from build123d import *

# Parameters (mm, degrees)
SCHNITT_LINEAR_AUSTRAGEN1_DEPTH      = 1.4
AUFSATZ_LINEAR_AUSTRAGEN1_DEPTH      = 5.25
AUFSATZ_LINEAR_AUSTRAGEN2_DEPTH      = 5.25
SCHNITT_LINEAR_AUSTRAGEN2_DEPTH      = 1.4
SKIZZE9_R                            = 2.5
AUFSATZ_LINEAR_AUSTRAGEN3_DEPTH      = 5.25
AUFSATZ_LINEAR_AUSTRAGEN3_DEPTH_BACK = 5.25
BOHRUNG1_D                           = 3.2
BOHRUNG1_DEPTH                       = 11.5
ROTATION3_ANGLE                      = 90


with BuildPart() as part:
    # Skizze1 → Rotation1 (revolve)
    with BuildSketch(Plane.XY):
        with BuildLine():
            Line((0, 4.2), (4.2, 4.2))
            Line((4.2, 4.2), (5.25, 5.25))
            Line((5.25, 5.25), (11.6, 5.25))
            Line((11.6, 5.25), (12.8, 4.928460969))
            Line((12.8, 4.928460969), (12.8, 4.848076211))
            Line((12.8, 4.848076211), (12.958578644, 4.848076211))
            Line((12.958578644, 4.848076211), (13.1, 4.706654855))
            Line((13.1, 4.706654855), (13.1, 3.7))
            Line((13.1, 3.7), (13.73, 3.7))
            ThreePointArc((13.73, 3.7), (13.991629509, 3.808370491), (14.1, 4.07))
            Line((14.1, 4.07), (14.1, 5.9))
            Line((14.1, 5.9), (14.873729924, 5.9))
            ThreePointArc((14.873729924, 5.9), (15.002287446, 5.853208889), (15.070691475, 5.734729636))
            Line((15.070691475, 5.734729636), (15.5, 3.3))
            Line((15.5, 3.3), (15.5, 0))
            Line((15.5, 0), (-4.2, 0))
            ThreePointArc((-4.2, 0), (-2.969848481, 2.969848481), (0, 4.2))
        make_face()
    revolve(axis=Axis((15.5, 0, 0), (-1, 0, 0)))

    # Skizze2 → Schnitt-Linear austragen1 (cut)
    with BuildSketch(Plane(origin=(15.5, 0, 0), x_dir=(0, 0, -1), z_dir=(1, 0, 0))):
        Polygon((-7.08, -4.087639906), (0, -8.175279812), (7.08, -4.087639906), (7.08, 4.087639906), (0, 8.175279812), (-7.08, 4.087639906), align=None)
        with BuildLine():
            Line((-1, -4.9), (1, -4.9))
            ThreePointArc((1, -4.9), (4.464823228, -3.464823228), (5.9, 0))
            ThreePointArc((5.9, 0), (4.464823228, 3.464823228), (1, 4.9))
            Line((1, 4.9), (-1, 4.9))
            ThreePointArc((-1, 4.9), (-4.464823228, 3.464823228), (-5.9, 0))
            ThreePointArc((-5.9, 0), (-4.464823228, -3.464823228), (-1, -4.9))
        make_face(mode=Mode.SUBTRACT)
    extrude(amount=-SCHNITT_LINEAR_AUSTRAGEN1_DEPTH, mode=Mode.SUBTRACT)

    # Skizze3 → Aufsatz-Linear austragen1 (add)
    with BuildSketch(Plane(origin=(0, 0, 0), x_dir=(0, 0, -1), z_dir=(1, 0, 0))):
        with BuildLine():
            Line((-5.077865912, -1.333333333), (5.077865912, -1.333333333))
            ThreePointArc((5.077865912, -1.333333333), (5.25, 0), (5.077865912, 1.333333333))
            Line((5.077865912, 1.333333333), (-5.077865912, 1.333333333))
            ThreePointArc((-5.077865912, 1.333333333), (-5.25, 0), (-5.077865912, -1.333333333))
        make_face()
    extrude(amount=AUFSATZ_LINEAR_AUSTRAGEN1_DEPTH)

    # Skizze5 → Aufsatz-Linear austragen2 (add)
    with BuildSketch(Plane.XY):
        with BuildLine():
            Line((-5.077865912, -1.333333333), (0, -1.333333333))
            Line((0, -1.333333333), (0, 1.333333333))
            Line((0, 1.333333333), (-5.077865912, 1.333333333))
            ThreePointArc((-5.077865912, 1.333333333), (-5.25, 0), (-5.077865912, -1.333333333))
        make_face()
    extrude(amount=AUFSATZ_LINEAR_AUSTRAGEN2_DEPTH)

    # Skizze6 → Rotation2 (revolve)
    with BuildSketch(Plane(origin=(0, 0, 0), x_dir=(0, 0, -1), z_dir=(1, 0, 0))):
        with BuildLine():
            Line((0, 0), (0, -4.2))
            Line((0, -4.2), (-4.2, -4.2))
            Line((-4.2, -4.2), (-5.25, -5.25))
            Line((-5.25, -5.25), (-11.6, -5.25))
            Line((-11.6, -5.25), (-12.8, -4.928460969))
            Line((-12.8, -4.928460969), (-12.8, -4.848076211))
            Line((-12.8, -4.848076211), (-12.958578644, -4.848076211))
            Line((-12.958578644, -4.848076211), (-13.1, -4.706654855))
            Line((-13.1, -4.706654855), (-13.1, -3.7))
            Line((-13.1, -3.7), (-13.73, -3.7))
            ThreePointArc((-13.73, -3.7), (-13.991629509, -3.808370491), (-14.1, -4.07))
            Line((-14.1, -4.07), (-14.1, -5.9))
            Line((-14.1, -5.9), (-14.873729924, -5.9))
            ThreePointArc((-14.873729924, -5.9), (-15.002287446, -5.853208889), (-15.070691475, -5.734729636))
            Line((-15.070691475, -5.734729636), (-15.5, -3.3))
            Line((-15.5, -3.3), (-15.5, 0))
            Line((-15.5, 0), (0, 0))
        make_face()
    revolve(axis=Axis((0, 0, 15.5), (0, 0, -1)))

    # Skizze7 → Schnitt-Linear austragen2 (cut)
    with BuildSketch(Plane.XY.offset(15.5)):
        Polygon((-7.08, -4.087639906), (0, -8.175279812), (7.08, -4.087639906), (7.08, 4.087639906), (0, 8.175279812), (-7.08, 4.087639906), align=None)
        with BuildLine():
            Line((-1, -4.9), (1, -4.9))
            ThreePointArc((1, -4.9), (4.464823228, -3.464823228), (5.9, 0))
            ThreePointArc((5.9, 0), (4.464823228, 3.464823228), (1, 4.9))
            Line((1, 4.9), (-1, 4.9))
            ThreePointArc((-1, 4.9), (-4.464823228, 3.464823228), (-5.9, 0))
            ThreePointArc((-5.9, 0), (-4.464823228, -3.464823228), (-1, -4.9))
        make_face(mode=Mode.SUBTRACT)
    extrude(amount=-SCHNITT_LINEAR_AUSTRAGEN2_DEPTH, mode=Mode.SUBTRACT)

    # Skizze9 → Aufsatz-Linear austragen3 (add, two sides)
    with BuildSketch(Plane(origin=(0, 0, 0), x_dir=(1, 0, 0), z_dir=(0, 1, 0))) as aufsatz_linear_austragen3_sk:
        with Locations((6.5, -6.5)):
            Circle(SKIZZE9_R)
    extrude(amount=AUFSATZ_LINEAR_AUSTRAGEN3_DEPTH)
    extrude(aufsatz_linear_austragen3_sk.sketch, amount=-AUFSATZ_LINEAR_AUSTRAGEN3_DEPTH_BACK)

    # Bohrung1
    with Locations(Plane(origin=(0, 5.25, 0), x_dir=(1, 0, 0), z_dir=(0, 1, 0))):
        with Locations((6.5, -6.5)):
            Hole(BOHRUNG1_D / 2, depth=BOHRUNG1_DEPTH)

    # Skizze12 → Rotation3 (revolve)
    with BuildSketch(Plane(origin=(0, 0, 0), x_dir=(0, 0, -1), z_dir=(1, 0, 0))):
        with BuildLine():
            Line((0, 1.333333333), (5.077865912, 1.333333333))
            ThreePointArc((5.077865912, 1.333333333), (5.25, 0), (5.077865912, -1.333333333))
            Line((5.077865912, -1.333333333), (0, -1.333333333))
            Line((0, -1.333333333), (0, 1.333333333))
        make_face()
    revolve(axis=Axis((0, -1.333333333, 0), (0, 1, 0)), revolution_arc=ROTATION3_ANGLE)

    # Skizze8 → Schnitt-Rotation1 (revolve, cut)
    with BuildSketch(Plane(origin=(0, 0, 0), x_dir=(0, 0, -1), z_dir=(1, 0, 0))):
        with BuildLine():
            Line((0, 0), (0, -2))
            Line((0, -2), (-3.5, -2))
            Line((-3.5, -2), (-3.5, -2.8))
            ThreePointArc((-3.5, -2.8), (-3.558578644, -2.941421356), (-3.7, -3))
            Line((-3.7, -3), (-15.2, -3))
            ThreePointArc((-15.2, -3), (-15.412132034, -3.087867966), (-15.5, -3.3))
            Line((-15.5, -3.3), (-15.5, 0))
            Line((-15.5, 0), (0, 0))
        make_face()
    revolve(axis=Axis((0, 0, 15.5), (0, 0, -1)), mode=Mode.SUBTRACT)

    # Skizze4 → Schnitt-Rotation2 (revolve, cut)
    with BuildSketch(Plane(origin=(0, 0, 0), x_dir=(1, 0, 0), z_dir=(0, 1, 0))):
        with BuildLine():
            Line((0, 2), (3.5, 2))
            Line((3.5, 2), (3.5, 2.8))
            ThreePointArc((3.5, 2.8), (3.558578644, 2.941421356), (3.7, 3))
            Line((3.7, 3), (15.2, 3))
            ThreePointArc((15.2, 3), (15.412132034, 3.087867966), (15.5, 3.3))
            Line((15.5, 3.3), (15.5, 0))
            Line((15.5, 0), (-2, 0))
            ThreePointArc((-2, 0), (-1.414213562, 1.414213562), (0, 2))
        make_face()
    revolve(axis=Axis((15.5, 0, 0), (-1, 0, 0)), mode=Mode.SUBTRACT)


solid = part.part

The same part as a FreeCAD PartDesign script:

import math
import FreeCAD as App
import Part
import Sketcher
from FreeCAD import Vector
Q = App.Units.Quantity


def add_polygon(sketch, points):
    """Adds a closed chain of lines whose ends are joined by coincident constraints."""
    first, n = sketch.GeometryCount, len(points)
    for a, b in zip(points, points[1:] + points[:1]):
        sketch.addGeometry(Part.LineSegment(App.Vector(*a, 0), App.Vector(*b, 0)), False)
    for i in range(n):
        sketch.addConstraint(Sketcher.Constraint("Coincident", first + i, 2, first + (i + 1) % n, 1))

doc = App.newDocument("Part")
params = doc.addObject("Spreadsheet::Sheet", "Params")
for row, (alias, value) in enumerate([
    ("sketch1_radius", "4.2 mm"),
    ("sketch1_radius2", "0.2 mm"),
    ("sketch1_radius3", "0.37 mm"),
    ("sketch1_width", "4.2 mm"),
    ("sketch1_width2", "19.7 mm"),
    ("revolution_angle", "360 deg"),
    ("sketch2_radius", "4.9 mm"),
    ("sketch2_height", "2 mm"),
    ("pocket1_length", "1.4 mm"),
    ("sketch3_radius", "5.25 mm"),
    ("pad1_length", "5.25 mm"),
    ("sketch4_radius", "5.25 mm"),
    ("pad2_length", "5.25 mm"),
    ("sketch5_radius", "0.2 mm"),
    ("sketch5_radius2", "0.37 mm"),
    ("sketch5_width", "4.2 mm"),
    ("sketch5_width2", "3.3 mm"),
    ("sketch5_height", "15.5 mm"),
    ("revolution2_angle", "360 deg"),
    ("sketch6_radius", "4.9 mm"),
    ("sketch6_width", "2 mm"),
    ("pocket2_length", "1.4 mm"),
    ("sketch7_diameter", "5 mm"),
    ("pad3_length", "5.25 mm"),
    ("pad3_length2", "5.25 mm"),
    ("sketch8_diameter", "3.2 mm"),
    ("hole_diameter", "3.2 mm"),
    ("hole_depth", "11.5 mm"),
    ("sketch9_radius", "5.25 mm"),
    ("revolution3_angle", "90 deg"),
    ("sketch10_radius", "0.3 mm"),
    ("sketch10_radius2", "0.2 mm"),
    ("sketch10_width", "2 mm"),
    ("sketch10_width2", "3.3 mm"),
    ("sketch10_height", "15.5 mm"),
    ("groove_angle", "360 deg"),
    ("sketch11_radius", "2 mm"),
    ("sketch11_radius2", "0.3 mm"),
    ("sketch11_radius3", "0.2 mm"),
    ("sketch11_width", "3.5 mm"),
    ("sketch11_width2", "17.5 mm"),
    ("groove2_angle", "360 deg"),
], start=1):
    params.set(f"A{row}", alias)
    params.set(f"B{row}", "=" + value)
    params.setAlias(f"B{row}", alias)

body = doc.addObject("PartDesign::Body", "Body")

sketch1 = body.newObject("Sketcher::SketchObject", "Sketch")
sketch1.AttachmentSupport = (doc.getObject("XY_Plane"), [""])
sketch1.MapMode = "FlatFace"
sketch1.addGeometry([
    Part.LineSegment(Vector(4.2, 4.2, 0), Vector(0, 4.2, 0)),
    Part.ArcOfCircle(Part.Circle(Vector(0, 0, 0), Vector(0, 0, 1), 4.2), math.radians(90), math.radians(180)),
    Part.LineSegment(Vector(-4.2, 0, 0), Vector(15.5, 0, 0)),
    Part.LineSegment(Vector(15.5, 0, 0), Vector(15.5, 3.3, 0)),
    Part.LineSegment(Vector(15.5, 3.3, 0), Vector(15.07, 5.73, 0)),
    Part.ArcOfCircle(Part.Circle(Vector(14.87, 5.7, 0), Vector(0, 0, 1), 0.2), math.radians(10), math.radians(90)),
    Part.LineSegment(Vector(14.87, 5.9, 0), Vector(14.1, 5.9, 0)),
    Part.LineSegment(Vector(14.1, 5.9, 0), Vector(14.1, 4.07, 0)),
    Part.ArcOfCircle(Part.Circle(Vector(13.73, 4.07, 0), Vector(0, 0, 1), 0.37), math.radians(-90), math.radians(0)),
    Part.LineSegment(Vector(13.73, 3.7, 0), Vector(13.1, 3.7, 0)),
    Part.LineSegment(Vector(13.1, 3.7, 0), Vector(13.1, 4.71, 0)),
    Part.LineSegment(Vector(13.1, 4.71, 0), Vector(12.96, 4.85, 0)),
    Part.LineSegment(Vector(12.96, 4.85, 0), Vector(12.8, 4.85, 0)),
    Part.LineSegment(Vector(12.8, 4.85, 0), Vector(12.8, 4.93, 0)),
    Part.LineSegment(Vector(12.8, 4.93, 0), Vector(11.6, 5.25, 0)),
    Part.LineSegment(Vector(11.6, 5.25, 0), Vector(5.25, 5.25, 0)),
    Part.LineSegment(Vector(5.25, 5.25, 0), Vector(4.2, 4.2, 0)),
], False)
sketch1.addConstraint([
    Sketcher.Constraint("Tangent", 0, 2, 1, 1),
    Sketcher.Constraint("Coincident", 1, 2, 2, 1),
    Sketcher.Constraint("Coincident", 2, 2, 3, 1),
    Sketcher.Constraint("Coincident", 3, 2, 4, 1),
    Sketcher.Constraint("Tangent", 4, 2, 5, 1),
    Sketcher.Constraint("Tangent", 5, 2, 6, 1),
    Sketcher.Constraint("Coincident", 6, 2, 7, 1),
    Sketcher.Constraint("Tangent", 7, 2, 8, 2),
    Sketcher.Constraint("Tangent", 8, 1, 9, 1),
    Sketcher.Constraint("Coincident", 9, 2, 10, 1),
    Sketcher.Constraint("Coincident", 10, 2, 11, 1),
    Sketcher.Constraint("Coincident", 11, 2, 12, 1),
    Sketcher.Constraint("Coincident", 12, 2, 13, 1),
    Sketcher.Constraint("Coincident", 13, 2, 14, 1),
    Sketcher.Constraint("Coincident", 14, 2, 15, 1),
    Sketcher.Constraint("Coincident", 15, 2, 16, 1),
    Sketcher.Constraint("Coincident", 16, 2, 0, 1),
    Sketcher.Constraint("Horizontal", 0),
    Sketcher.Constraint("Horizontal", 2),
    Sketcher.Constraint("Vertical", 3),
    Sketcher.Constraint("Horizontal", 6),
    Sketcher.Constraint("Vertical", 7),
    Sketcher.Constraint("Horizontal", 9),
    Sketcher.Constraint("Vertical", 10),
    Sketcher.Constraint("Horizontal", 12),
    Sketcher.Constraint("Vertical", 13),
    Sketcher.Constraint("Horizontal", 15),
    Sketcher.Constraint("Coincident", 1, 3, -1, 1),
    Sketcher.Constraint("PointOnObject", 1, 2, -1),
    Sketcher.Constraint("Perpendicular", 11, 16),
    Sketcher.Constraint("Radius", 1, Q("4.2 mm")),
    Sketcher.Constraint("Radius", 5, Q("0.2 mm")),
    Sketcher.Constraint("Angle", 4, Q("100 deg")),
    Sketcher.Constraint("Angle", 11, Q("135 deg")),
    Sketcher.Constraint("Angle", 14, Q("165 deg")),
    Sketcher.Constraint("Radius", 8, Q("0.37 mm")),
    Sketcher.Constraint("DistanceX", 0, 2, 0, 1, Q("4.2 mm")),
    Sketcher.Constraint("DistanceX", 2, 1, 2, 2, Q("19.7 mm")),
    Sketcher.Constraint("DistanceY", 3, 1, 3, 2, Q("3.3 mm")),
    Sketcher.Constraint("DistanceY", 8, 1, 5, 3, Q("2 mm")),
    Sketcher.Constraint("DistanceX", 9, 2, 7, 2, Q("1 mm")),
    Sketcher.Constraint("Distance", 11, Q("0.2 mm")),
    Sketcher.Constraint("DistanceX", 15, 2, 15, 1, Q("6.35 mm")),
    Sketcher.Constraint("DistanceY", -1, 1, 5, 3, Q("5.7 mm")),
    Sketcher.Constraint("DistanceX", -1, 1, 6, 2, Q("14.1 mm")),
    Sketcher.Constraint("DistanceX", -1, 1, 12, 2, Q("12.8 mm")),
    Sketcher.Constraint("DistanceX", -1, 1, 14, 2, Q("11.6 mm")),
    Sketcher.Constraint("DistanceY", 10, 1, 10, 2, Q("1.006655 mm")),
])
sketch1.setExpression("Constraints[30]", "Params.sketch1_radius")
sketch1.setExpression("Constraints[31]", "Params.sketch1_radius2")
sketch1.setExpression("Constraints[35]", "Params.sketch1_radius3")
sketch1.setExpression("Constraints[36]", "Params.sketch1_width")
sketch1.setExpression("Constraints[37]", "Params.sketch1_width2")
revolution = body.newObject("PartDesign::Revolution", "Revolution")
revolution.Profile = sketch1
revolution.ReferenceAxis = (sketch1, ["H_Axis"])
revolution.setExpression("Angle", "Params.revolution_angle")

sketch2 = body.newObject("Sketcher::SketchObject", "Sketch001")
sketch2.AttachmentSupport = (doc.getObject("YZ_Plane"), [""])
sketch2.MapMode = "FlatFace"
sketch2.AttachmentOffset = App.Placement(Vector(0, 0, 15.5), App.Rotation())
add_polygon(sketch2, [(-4.1, 7.1), (-8.2, 0), (-4.1, -7.1), (4.1, -7.1), (8.2, 0), (4.1, 7.1)])
sketch2.addGeometry(Part.LineSegment(Vector(-4.9, -1, 0), Vector(-4.9, 1, 0)), False)
sketch2.addGeometry(Part.ArcOfCircle(Part.Circle(Vector(0, 1, 0), Vector(0, 0, 1), 4.9), math.radians(90), math.radians(180)), False)
sketch2.addGeometry(Part.ArcOfCircle(Part.Circle(Vector(0, 1, 0), Vector(0, 0, 1), 4.9), math.radians(0), math.radians(90)), False)
sketch2.addGeometry(Part.LineSegment(Vector(4.9, 1, 0), Vector(4.9, -1, 0)), False)
sketch2.addGeometry(Part.ArcOfCircle(Part.Circle(Vector(0, -1, 0), Vector(0, 0, 1), 4.9), math.radians(-90), math.radians(0)), False)
sketch2.addGeometry(Part.ArcOfCircle(Part.Circle(Vector(0, -1, 0), Vector(0, 0, 1), 4.9), math.radians(180), math.radians(270)), False)
sketch2.addConstraint([
    Sketcher.Constraint("Tangent", 6, 2, 7, 2),
    Sketcher.Constraint("Tangent", 7, 1, 8, 2),
    Sketcher.Constraint("Tangent", 8, 1, 9, 1),
    Sketcher.Constraint("Tangent", 9, 2, 10, 2),
    Sketcher.Constraint("Tangent", 10, 1, 11, 2),
    Sketcher.Constraint("Tangent", 11, 1, 6, 1),
    Sketcher.Constraint("Horizontal", 2),
    Sketcher.Constraint("Horizontal", 5),
    Sketcher.Constraint("Vertical", 6),
    Sketcher.Constraint("Vertical", 9),
    Sketcher.Constraint("Equal", 7, 8),
    Sketcher.Constraint("Equal", 8, 10),
    Sketcher.Constraint("Symmetric", 7, 3, 10, 3, -1, 1),
    Sketcher.Constraint("Symmetric", 0, 2, 3, 2, -1, 1),
    Sketcher.Constraint("Symmetric", 1, 2, 4, 2, -1, 1),
    Sketcher.Constraint("PointOnObject", 0, 2, -1),
    Sketcher.Constraint("PointOnObject", 7, 1, -2),
    Sketcher.Constraint("PointOnObject", 10, 1, -2),
    Sketcher.Constraint("Parallel", 0, 3),
    Sketcher.Constraint("Vertical", 2, 2, 4, 2),
    Sketcher.Constraint("Radius", 7, Q("4.9 mm")),
    Sketcher.Constraint("DistanceY", 6, 1, 6, 2, Q("2 mm")),
    Sketcher.Constraint("Angle", 0, Q("-120 deg")),
    Sketcher.Constraint("DistanceY", 1, 2, -1, 1, Q("7.08 mm")),
    Sketcher.Constraint("DistanceX", 2, 1, 2, 2, Q("8.17528 mm")),
])
sketch2.setExpression("Constraints[26]", "Params.sketch2_radius")
sketch2.setExpression("Constraints[27]", "Params.sketch2_height")
pocket1 = body.newObject("PartDesign::Pocket", "Pocket")
pocket1.Profile = sketch2
pocket1.setExpression("Length", "Params.pocket1_length")

sketch3 = body.newObject("Sketcher::SketchObject", "Sketch002")
sketch3.AttachmentSupport = (doc.getObject("YZ_Plane"), [""])
sketch3.MapMode = "FlatFace"
sketch3.addGeometry([
    Part.LineSegment(Vector(-1.3, 5.1, 0), Vector(-1.3, -5.1, 0)),
    Part.ArcOfCircle(Part.Circle(Vector(0, 0, 0), Vector(0, 0, 1), 5.2), math.radians(-105), math.radians(-75)),
    Part.LineSegment(Vector(1.3, -5.1, 0), Vector(1.3, 5.1, 0)),
    Part.ArcOfCircle(Part.Circle(Vector(0, 0, 0), Vector(0, 0, 1), 5.2), math.radians(75), math.radians(105)),
], False)
sketch3.addConstraint([
    Sketcher.Constraint("Coincident", 0, 2, 1, 1),
    Sketcher.Constraint("Coincident", 1, 2, 2, 1),
    Sketcher.Constraint("Coincident", 2, 2, 3, 1),
    Sketcher.Constraint("Coincident", 3, 2, 0, 1),
    Sketcher.Constraint("Vertical", 0),
    Sketcher.Constraint("Vertical", 2),
    Sketcher.Constraint("Coincident", 1, 3, -1, 1),
    Sketcher.Constraint("Coincident", 3, 3, -1, 1),
    Sketcher.Constraint("Equal", 1, 3),
    Sketcher.Constraint("Horizontal", 0, 2, 1, 2),
    Sketcher.Constraint("Radius", 1, Q("5.25 mm")),
    Sketcher.Constraint("DistanceY", 0, 2, 0, 1, Q("10.155732 mm")),
])
sketch3.setExpression("Constraints[10]", "Params.sketch3_radius")
pad1 = body.newObject("PartDesign::Pad", "Pad")
pad1.Profile = sketch3
pad1.setExpression("Length", "Params.pad1_length")

sketch4 = body.newObject("Sketcher::SketchObject", "Sketch003")
sketch4.AttachmentSupport = (doc.getObject("XY_Plane"), [""])
sketch4.MapMode = "FlatFace"
sketch4.addGeometry([
    Part.LineSegment(Vector(-5.1, -1.3, 0), Vector(0, -1.3, 0)),
    Part.LineSegment(Vector(0, -1.3, 0), Vector(0, 1.3, 0)),
    Part.LineSegment(Vector(0, 1.3, 0), Vector(-5.1, 1.3, 0)),
    Part.ArcOfCircle(Part.Circle(Vector(0, 0, 0), Vector(0, 0, 1), 5.2), math.radians(165), math.radians(195)),
], False)
sketch4.addConstraint([
    Sketcher.Constraint("Coincident", 0, 2, 1, 1),
    Sketcher.Constraint("Coincident", 1, 2, 2, 1),
    Sketcher.Constraint("Coincident", 2, 2, 3, 1),
    Sketcher.Constraint("Coincident", 3, 2, 0, 1),
    Sketcher.Constraint("Horizontal", 0),
    Sketcher.Constraint("Vertical", 1),
    Sketcher.Constraint("Horizontal", 2),
    Sketcher.Constraint("Coincident", 3, 3, -1, 1),
    Sketcher.Constraint("Symmetric", 0, 2, 1, 2, -1, 1),
    Sketcher.Constraint("Radius", 3, Q("5.25 mm")),
    Sketcher.Constraint("DistanceX", 0, 1, 0, 2, Q("5.077866 mm")),
])
sketch4.setExpression("Constraints[9]", "Params.sketch4_radius")
pad2 = body.newObject("PartDesign::Pad", "Pad001")
pad2.Profile = sketch4
pad2.setExpression("Length", "Params.pad2_length")

sketch5 = body.newObject("Sketcher::SketchObject", "Sketch004")
sketch5.AttachmentSupport = (doc.getObject("YZ_Plane"), [""])
sketch5.MapMode = "FlatFace"
sketch5.addGeometry([
    Part.LineSegment(Vector(-4.2, 0, 0), Vector(0, 0, 0)),
    Part.LineSegment(Vector(0, 0, 0), Vector(0, 15.5, 0)),
    Part.LineSegment(Vector(0, 15.5, 0), Vector(-3.3, 15.5, 0)),
    Part.LineSegment(Vector(-3.3, 15.5, 0), Vector(-5.73, 15.07, 0)),
    Part.ArcOfCircle(Part.Circle(Vector(-5.7, 14.87, 0), Vector(0, 0, 1), 0.2), math.radians(100), math.radians(180)),
    Part.LineSegment(Vector(-5.9, 14.87, 0), Vector(-5.9, 14.1, 0)),
    Part.LineSegment(Vector(-5.9, 14.1, 0), Vector(-4.07, 14.1, 0)),
    Part.ArcOfCircle(Part.Circle(Vector(-4.07, 13.73, 0), Vector(0, 0, 1), 0.37), math.radians(0), math.radians(90)),
    Part.LineSegment(Vector(-3.7, 13.73, 0), Vector(-3.7, 13.1, 0)),
    Part.LineSegment(Vector(-3.7, 13.1, 0), Vector(-4.71, 13.1, 0)),
    Part.LineSegment(Vector(-4.71, 13.1, 0), Vector(-4.85, 12.96, 0)),
    Part.LineSegment(Vector(-4.85, 12.96, 0), Vector(-4.85, 12.8, 0)),
    Part.LineSegment(Vector(-4.85, 12.8, 0), Vector(-4.93, 12.8, 0)),
    Part.LineSegment(Vector(-4.93, 12.8, 0), Vector(-5.25, 11.6, 0)),
    Part.LineSegment(Vector(-5.25, 11.6, 0), Vector(-5.25, 5.25, 0)),
    Part.LineSegment(Vector(-5.25, 5.25, 0), Vector(-4.2, 4.2, 0)),
    Part.LineSegment(Vector(-4.2, 4.2, 0), Vector(-4.2, 0, 0)),
], False)
sketch5.addConstraint([
    Sketcher.Constraint("Coincident", 0, 2, 1, 1),
    Sketcher.Constraint("Coincident", 1, 2, 2, 1),
    Sketcher.Constraint("Coincident", 2, 2, 3, 1),
    Sketcher.Constraint("Tangent", 3, 2, 4, 1),
    Sketcher.Constraint("Tangent", 4, 2, 5, 1),
    Sketcher.Constraint("Coincident", 5, 2, 6, 1),
    Sketcher.Constraint("Tangent", 6, 2, 7, 2),
    Sketcher.Constraint("Tangent", 7, 1, 8, 1),
    Sketcher.Constraint("Coincident", 8, 2, 9, 1),
    Sketcher.Constraint("Coincident", 9, 2, 10, 1),
    Sketcher.Constraint("Coincident", 10, 2, 11, 1),
    Sketcher.Constraint("Coincident", 11, 2, 12, 1),
    Sketcher.Constraint("Coincident", 12, 2, 13, 1),
    Sketcher.Constraint("Coincident", 13, 2, 14, 1),
    Sketcher.Constraint("Coincident", 14, 2, 15, 1),
    Sketcher.Constraint("Coincident", 15, 2, 16, 1),
    Sketcher.Constraint("Coincident", 16, 2, 0, 1),
    Sketcher.Constraint("Horizontal", 0),
    Sketcher.Constraint("Vertical", 1),
    Sketcher.Constraint("Horizontal", 2),
    Sketcher.Constraint("Vertical", 5),
    Sketcher.Constraint("Horizontal", 6),
    Sketcher.Constraint("Vertical", 8),
    Sketcher.Constraint("Horizontal", 9),
    Sketcher.Constraint("Vertical", 11),
    Sketcher.Constraint("Horizontal", 12),
    Sketcher.Constraint("Vertical", 14),
    Sketcher.Constraint("Vertical", 16),
    Sketcher.Constraint("Coincident", 0, 2, -1, 1),
    Sketcher.Constraint("Perpendicular", 10, 15),
    Sketcher.Constraint("Equal", 0, 16),
    Sketcher.Constraint("Radius", 4, Q("0.2 mm")),
    Sketcher.Constraint("Angle", 3, Q("-170 deg")),
    Sketcher.Constraint("Angle", 10, Q("-135 deg")),
    Sketcher.Constraint("Angle", 13, Q("-105 deg")),
    Sketcher.Constraint("Radius", 7, Q("0.37 mm")),
    Sketcher.Constraint("DistanceX", 0, 1, 0, 2, Q("4.2 mm")),
    Sketcher.Constraint("DistanceX", 2, 2, 2, 1, Q("3.3 mm")),
    Sketcher.Constraint("DistanceY", 1, 1, 1, 2, Q("15.5 mm")),
    Sketcher.Constraint("DistanceX", 4, 3, 7, 1, Q("2 mm")),
    Sketcher.Constraint("DistanceY", 8, 2, 6, 2, Q("1 mm")),
    Sketcher.Constraint("Distance", 10, Q("0.2 mm")),
    Sketcher.Constraint("DistanceY", 14, 2, 14, 1, Q("6.35 mm")),
    Sketcher.Constraint("DistanceX", 4, 3, -1, 1, Q("5.7 mm")),
    Sketcher.Constraint("DistanceY", -1, 1, 5, 2, Q("14.1 mm")),
    Sketcher.Constraint("DistanceY", -1, 1, 11, 2, Q("12.8 mm")),
    Sketcher.Constraint("DistanceY", -1, 1, 13, 2, Q("11.6 mm")),
    Sketcher.Constraint("DistanceX", 9, 2, 9, 1, Q("1.006655 mm")),
])
sketch5.setExpression("Constraints[31]", "Params.sketch5_radius")
sketch5.setExpression("Constraints[35]", "Params.sketch5_radius2")
sketch5.setExpression("Constraints[36]", "Params.sketch5_width")
sketch5.setExpression("Constraints[37]", "Params.sketch5_width2")
sketch5.setExpression("Constraints[38]", "Params.sketch5_height")
revolution2 = body.newObject("PartDesign::Revolution", "Revolution001")
revolution2.Profile = sketch5
revolution2.ReferenceAxis = (sketch5, ["V_Axis"])
revolution2.setExpression("Angle", "Params.revolution2_angle")

sketch6 = body.newObject("Sketcher::SketchObject", "Sketch005")
sketch6.AttachmentSupport = (doc.getObject("XY_Plane"), [""])
sketch6.MapMode = "FlatFace"
sketch6.AttachmentOffset = App.Placement(Vector(0, 0, 15.5), App.Rotation())
add_polygon(sketch6, [(-7.1, -4.1), (0, -8.2), (7.1, -4.1), (7.1, 4.1), (0, 8.2), (-7.1, 4.1)])
sketch6.addGeometry(Part.LineSegment(Vector(1, -4.9, 0), Vector(-1, -4.9, 0)), False)
sketch6.addGeometry(Part.ArcOfCircle(Part.Circle(Vector(-1, 0, 0), Vector(0, 0, 1), 4.9), math.radians(180), math.radians(270)), False)
sketch6.addGeometry(Part.ArcOfCircle(Part.Circle(Vector(-1, 0, 0), Vector(0, 0, 1), 4.9), math.radians(90), math.radians(180)), False)
sketch6.addGeometry(Part.LineSegment(Vector(-1, 4.9, 0), Vector(1, 4.9, 0)), False)
sketch6.addGeometry(Part.ArcOfCircle(Part.Circle(Vector(1, 0, 0), Vector(0, 0, 1), 4.9), math.radians(0), math.radians(90)), False)
sketch6.addGeometry(Part.ArcOfCircle(Part.Circle(Vector(1, 0, 0), Vector(0, 0, 1), 4.9), math.radians(-90), math.radians(0)), False)
sketch6.addConstraint([
    Sketcher.Constraint("Tangent", 6, 2, 7, 2),
    Sketcher.Constraint("Tangent", 7, 1, 8, 2),
    Sketcher.Constraint("Tangent", 8, 1, 9, 1),
    Sketcher.Constraint("Tangent", 9, 2, 10, 2),
    Sketcher.Constraint("Tangent", 10, 1, 11, 2),
    Sketcher.Constraint("Tangent", 11, 1, 6, 1),
    Sketcher.Constraint("Vertical", 2),
    Sketcher.Constraint("Vertical", 5),
    Sketcher.Constraint("Horizontal", 6),
    Sketcher.Constraint("Horizontal", 9),
    Sketcher.Constraint("Equal", 7, 8),
    Sketcher.Constraint("Equal", 8, 10),
    Sketcher.Constraint("Symmetric", 7, 3, 10, 3, -1, 1),
    Sketcher.Constraint("Symmetric", 0, 2, 3, 2, -1, 1),
    Sketcher.Constraint("Symmetric", 1, 2, 4, 2, -1, 1),
    Sketcher.Constraint("PointOnObject", 0, 2, -2),
    Sketcher.Constraint("PointOnObject", 7, 1, -1),
    Sketcher.Constraint("PointOnObject", 10, 1, -1),
    Sketcher.Constraint("Parallel", 0, 3),
    Sketcher.Constraint("Horizontal", 2, 2, 4, 2),
    Sketcher.Constraint("Radius", 7, Q("4.9 mm")),
    Sketcher.Constraint("DistanceX", 6, 2, 6, 1, Q("2 mm")),
    Sketcher.Constraint("Angle", 0, Q("-30 deg")),
    Sketcher.Constraint("DistanceX", -1, 1, 1, 2, Q("7.08 mm")),
    Sketcher.Constraint("DistanceY", 2, 1, 2, 2, Q("8.17528 mm")),
])
sketch6.setExpression("Constraints[26]", "Params.sketch6_radius")
sketch6.setExpression("Constraints[27]", "Params.sketch6_width")
pocket2 = body.newObject("PartDesign::Pocket", "Pocket001")
pocket2.Profile = sketch6
pocket2.setExpression("Length", "Params.pocket2_length")

sketch7 = body.newObject("Sketcher::SketchObject", "Sketch006")
sketch7.AttachmentSupport = (doc.getObject("XZ_Plane"), [""])
sketch7.MapMode = "FlatFace"
sketch7.addGeometry(Part.Circle(Vector(6.5, 6.5, 0), Vector(0, 0, 1), 2.5), False)
sketch7.addConstraint([
    Sketcher.Constraint("Diameter", 0, Q("5 mm")),
    Sketcher.Constraint("DistanceX", -1, 1, 0, 3, Q("6.5 mm")),
    Sketcher.Constraint("DistanceY", -1, 1, 0, 3, Q("6.5 mm")),
])
sketch7.setExpression("Constraints[0]", "Params.sketch7_diameter")
pad3 = body.newObject("PartDesign::Pad", "Pad002")
pad3.Profile = sketch7
pad3.Type = "TwoLengths"
pad3.setExpression("Length", "Params.pad3_length")
pad3.setExpression("Length2", "Params.pad3_length2")
pad3.Reversed = True

sketch8 = body.newObject("Sketcher::SketchObject", "Sketch007")
sketch8.AttachmentSupport = (doc.getObject("XZ_Plane"), [""])
sketch8.MapMode = "FlatFace"
sketch8.AttachmentOffset = App.Placement(Vector(0, 0, -5.25), App.Rotation())
sketch8.addGeometry(Part.Circle(Vector(6.5, 6.5, 0), Vector(0, 0, 1), 1.6), False)
sketch8.addConstraint([
    Sketcher.Constraint("Diameter", 0, Q("3.2 mm")),
    Sketcher.Constraint("DistanceX", -1, 1, 0, 3, Q("6.5 mm")),
    Sketcher.Constraint("DistanceY", -1, 1, 0, 3, Q("6.5 mm")),
])
sketch8.setExpression("Constraints[0]", "Params.sketch8_diameter")
doc.recompute()
hole = body.newObject("PartDesign::Hole", "Hole")
hole.Profile = sketch8
hole.ThreadType = "None"
hole.setExpression("Diameter", "Params.hole_diameter")
hole.DepthType = "Dimension"
hole.setExpression("Depth", "Params.hole_depth")
hole.DrillPoint = "Flat"
hole.Reversed = True

sketch9 = body.newObject("Sketcher::SketchObject", "Sketch008")
sketch9.AttachmentSupport = (doc.getObject("YZ_Plane"), [""])
sketch9.MapMode = "FlatFace"
sketch9.addGeometry([
    Part.LineSegment(Vector(1.3, -5.1, 0), Vector(1.3, 0, 0)),
    Part.LineSegment(Vector(1.3, 0, 0), Vector(-1.3, 0, 0)),
    Part.LineSegment(Vector(-1.3, 0, 0), Vector(-1.3, -5.1, 0)),
    Part.ArcOfCircle(Part.Circle(Vector(0, 0, 0), Vector(0, 0, 1), 5.2), math.radians(-105), math.radians(-75)),
], False)
sketch9.addConstraint([
    Sketcher.Constraint("Coincident", 0, 2, 1, 1),
    Sketcher.Constraint("Coincident", 1, 2, 2, 1),
    Sketcher.Constraint("Coincident", 2, 2, 3, 1),
    Sketcher.Constraint("Coincident", 3, 2, 0, 1),
    Sketcher.Constraint("Vertical", 0),
    Sketcher.Constraint("Horizontal", 1),
    Sketcher.Constraint("Vertical", 2),
    Sketcher.Constraint("Coincident", 3, 3, -1, 1),
    Sketcher.Constraint("Symmetric", 0, 2, 1, 2, -1, 1),
    Sketcher.Constraint("Radius", 3, Q("5.25 mm")),
    Sketcher.Constraint("DistanceX", 1, 2, 1, 1, Q("2.666667 mm")),
])
sketch9.setExpression("Constraints[9]", "Params.sketch9_radius")
revolution3 = body.newObject("PartDesign::Revolution", "Revolution002")
revolution3.Profile = sketch9
revolution3.ReferenceAxis = (sketch9, ["H_Axis"])
revolution3.setExpression("Angle", "Params.revolution3_angle")

sketch10 = body.newObject("Sketcher::SketchObject", "Sketch009")
sketch10.AttachmentSupport = (doc.getObject("YZ_Plane"), [""])
sketch10.MapMode = "FlatFace"
sketch10.addGeometry([
    Part.LineSegment(Vector(-2, 0, 0), Vector(0, 0, 0)),
    Part.LineSegment(Vector(0, 0, 0), Vector(0, 15.5, 0)),
    Part.LineSegment(Vector(0, 15.5, 0), Vector(-3.3, 15.5, 0)),
    Part.ArcOfCircle(Part.Circle(Vector(-3.3, 15.2, 0), Vector(0, 0, 1), 0.3), math.radians(0), math.radians(90)),
    Part.LineSegment(Vector(-3, 15.2, 0), Vector(-3, 3.7, 0)),
    Part.ArcOfCircle(Part.Circle(Vector(-2.8, 3.7, 0), Vector(0, 0, 1), 0.2), math.radians(-180), math.radians(-90)),
    Part.LineSegment(Vector(-2.8, 3.5, 0), Vector(-2, 3.5, 0)),
    Part.LineSegment(Vector(-2, 3.5, 0), Vector(-2, 0, 0)),
], False)
sketch10.addConstraint([
    Sketcher.Constraint("Coincident", 0, 2, 1, 1),
    Sketcher.Constraint("Coincident", 1, 2, 2, 1),
    Sketcher.Constraint("Tangent", 2, 2, 3, 2),
    Sketcher.Constraint("Tangent", 3, 1, 4, 1),
    Sketcher.Constraint("Tangent", 4, 2, 5, 1),
    Sketcher.Constraint("Tangent", 5, 2, 6, 1),
    Sketcher.Constraint("Coincident", 6, 2, 7, 1),
    Sketcher.Constraint("Coincident", 7, 2, 0, 1),
    Sketcher.Constraint("Horizontal", 0),
    Sketcher.Constraint("Vertical", 1),
    Sketcher.Constraint("Horizontal", 2),
    Sketcher.Constraint("Vertical", 4),
    Sketcher.Constraint("Horizontal", 6),
    Sketcher.Constraint("Vertical", 7),
    Sketcher.Constraint("Coincident", 0, 2, -1, 1),
    Sketcher.Constraint("Radius", 3, Q("0.3 mm")),
    Sketcher.Constraint("Radius", 5, Q("0.2 mm")),
    Sketcher.Constraint("DistanceX", 0, 1, 0, 2, Q("2 mm")),
    Sketcher.Constraint("DistanceX", 2, 2, 2, 1, Q("3.3 mm")),
    Sketcher.Constraint("DistanceY", 1, 1, 1, 2, Q("15.5 mm")),
    Sketcher.Constraint("DistanceY", 4, 2, 4, 1, Q("11.5 mm")),
])
sketch10.setExpression("Constraints[15]", "Params.sketch10_radius")
sketch10.setExpression("Constraints[16]", "Params.sketch10_radius2")
sketch10.setExpression("Constraints[17]", "Params.sketch10_width")
sketch10.setExpression("Constraints[18]", "Params.sketch10_width2")
sketch10.setExpression("Constraints[19]", "Params.sketch10_height")
groove = body.newObject("PartDesign::Groove", "Groove")
groove.Profile = sketch10
groove.ReferenceAxis = (sketch10, ["V_Axis"])
groove.setExpression("Angle", "Params.groove_angle")

sketch11 = body.newObject("Sketcher::SketchObject", "Sketch010")
sketch11.AttachmentSupport = (doc.getObject("XZ_Plane"), [""])
sketch11.MapMode = "FlatFace"
sketch11.addGeometry([
    Part.LineSegment(Vector(3.5, -2, 0), Vector(0, -2, 0)),
    Part.ArcOfCircle(Part.Circle(Vector(0, 0, 0), Vector(0, 0, 1), 2), math.radians(-180), math.radians(-90)),
    Part.LineSegment(Vector(-2, 0, 0), Vector(15.5, 0, 0)),
    Part.LineSegment(Vector(15.5, 0, 0), Vector(15.5, -3.3, 0)),
    Part.ArcOfCircle(Part.Circle(Vector(15.2, -3.3, 0), Vector(0, 0, 1), 0.3), math.radians(0), math.radians(90)),
    Part.LineSegment(Vector(15.2, -3, 0), Vector(3.7, -3, 0)),
    Part.ArcOfCircle(Part.Circle(Vector(3.7, -2.8, 0), Vector(0, 0, 1), 0.2), math.radians(-180), math.radians(-90)),
    Part.LineSegment(Vector(3.5, -2.8, 0), Vector(3.5, -2, 0)),
], False)
sketch11.addConstraint([
    Sketcher.Constraint("Tangent", 0, 2, 1, 2),
    Sketcher.Constraint("Coincident", 1, 1, 2, 1),
    Sketcher.Constraint("Coincident", 2, 2, 3, 1),
    Sketcher.Constraint("Tangent", 3, 2, 4, 1),
    Sketcher.Constraint("Tangent", 4, 2, 5, 1),
    Sketcher.Constraint("Tangent", 5, 2, 6, 2),
    Sketcher.Constraint("Tangent", 6, 1, 7, 1),
    Sketcher.Constraint("Coincident", 7, 2, 0, 1),
    Sketcher.Constraint("Horizontal", 0),
    Sketcher.Constraint("Horizontal", 2),
    Sketcher.Constraint("Vertical", 3),
    Sketcher.Constraint("Horizontal", 5),
    Sketcher.Constraint("Vertical", 7),
    Sketcher.Constraint("Coincident", 1, 3, -1, 1),
    Sketcher.Constraint("PointOnObject", 1, 1, -1),
    Sketcher.Constraint("Radius", 1, Q("2 mm")),
    Sketcher.Constraint("Radius", 4, Q("0.3 mm")),
    Sketcher.Constraint("Radius", 6, Q("0.2 mm")),
    Sketcher.Constraint("DistanceX", 0, 2, 0, 1, Q("3.5 mm")),
    Sketcher.Constraint("DistanceX", 2, 1, 2, 2, Q("17.5 mm")),
    Sketcher.Constraint("DistanceY", 3, 2, 3, 1, Q("3.3 mm")),
])
sketch11.setExpression("Constraints[15]", "Params.sketch11_radius")
sketch11.setExpression("Constraints[16]", "Params.sketch11_radius2")
sketch11.setExpression("Constraints[17]", "Params.sketch11_radius3")
sketch11.setExpression("Constraints[18]", "Params.sketch11_width")
sketch11.setExpression("Constraints[19]", "Params.sketch11_width2")
groove2 = body.newObject("PartDesign::Groove", "Groove001")
groove2.Profile = sketch11
groove2.ReferenceAxis = (sketch11, ["H_Axis"])
groove2.setExpression("Angle", "Params.groove2_angle")

doc.recompute()
